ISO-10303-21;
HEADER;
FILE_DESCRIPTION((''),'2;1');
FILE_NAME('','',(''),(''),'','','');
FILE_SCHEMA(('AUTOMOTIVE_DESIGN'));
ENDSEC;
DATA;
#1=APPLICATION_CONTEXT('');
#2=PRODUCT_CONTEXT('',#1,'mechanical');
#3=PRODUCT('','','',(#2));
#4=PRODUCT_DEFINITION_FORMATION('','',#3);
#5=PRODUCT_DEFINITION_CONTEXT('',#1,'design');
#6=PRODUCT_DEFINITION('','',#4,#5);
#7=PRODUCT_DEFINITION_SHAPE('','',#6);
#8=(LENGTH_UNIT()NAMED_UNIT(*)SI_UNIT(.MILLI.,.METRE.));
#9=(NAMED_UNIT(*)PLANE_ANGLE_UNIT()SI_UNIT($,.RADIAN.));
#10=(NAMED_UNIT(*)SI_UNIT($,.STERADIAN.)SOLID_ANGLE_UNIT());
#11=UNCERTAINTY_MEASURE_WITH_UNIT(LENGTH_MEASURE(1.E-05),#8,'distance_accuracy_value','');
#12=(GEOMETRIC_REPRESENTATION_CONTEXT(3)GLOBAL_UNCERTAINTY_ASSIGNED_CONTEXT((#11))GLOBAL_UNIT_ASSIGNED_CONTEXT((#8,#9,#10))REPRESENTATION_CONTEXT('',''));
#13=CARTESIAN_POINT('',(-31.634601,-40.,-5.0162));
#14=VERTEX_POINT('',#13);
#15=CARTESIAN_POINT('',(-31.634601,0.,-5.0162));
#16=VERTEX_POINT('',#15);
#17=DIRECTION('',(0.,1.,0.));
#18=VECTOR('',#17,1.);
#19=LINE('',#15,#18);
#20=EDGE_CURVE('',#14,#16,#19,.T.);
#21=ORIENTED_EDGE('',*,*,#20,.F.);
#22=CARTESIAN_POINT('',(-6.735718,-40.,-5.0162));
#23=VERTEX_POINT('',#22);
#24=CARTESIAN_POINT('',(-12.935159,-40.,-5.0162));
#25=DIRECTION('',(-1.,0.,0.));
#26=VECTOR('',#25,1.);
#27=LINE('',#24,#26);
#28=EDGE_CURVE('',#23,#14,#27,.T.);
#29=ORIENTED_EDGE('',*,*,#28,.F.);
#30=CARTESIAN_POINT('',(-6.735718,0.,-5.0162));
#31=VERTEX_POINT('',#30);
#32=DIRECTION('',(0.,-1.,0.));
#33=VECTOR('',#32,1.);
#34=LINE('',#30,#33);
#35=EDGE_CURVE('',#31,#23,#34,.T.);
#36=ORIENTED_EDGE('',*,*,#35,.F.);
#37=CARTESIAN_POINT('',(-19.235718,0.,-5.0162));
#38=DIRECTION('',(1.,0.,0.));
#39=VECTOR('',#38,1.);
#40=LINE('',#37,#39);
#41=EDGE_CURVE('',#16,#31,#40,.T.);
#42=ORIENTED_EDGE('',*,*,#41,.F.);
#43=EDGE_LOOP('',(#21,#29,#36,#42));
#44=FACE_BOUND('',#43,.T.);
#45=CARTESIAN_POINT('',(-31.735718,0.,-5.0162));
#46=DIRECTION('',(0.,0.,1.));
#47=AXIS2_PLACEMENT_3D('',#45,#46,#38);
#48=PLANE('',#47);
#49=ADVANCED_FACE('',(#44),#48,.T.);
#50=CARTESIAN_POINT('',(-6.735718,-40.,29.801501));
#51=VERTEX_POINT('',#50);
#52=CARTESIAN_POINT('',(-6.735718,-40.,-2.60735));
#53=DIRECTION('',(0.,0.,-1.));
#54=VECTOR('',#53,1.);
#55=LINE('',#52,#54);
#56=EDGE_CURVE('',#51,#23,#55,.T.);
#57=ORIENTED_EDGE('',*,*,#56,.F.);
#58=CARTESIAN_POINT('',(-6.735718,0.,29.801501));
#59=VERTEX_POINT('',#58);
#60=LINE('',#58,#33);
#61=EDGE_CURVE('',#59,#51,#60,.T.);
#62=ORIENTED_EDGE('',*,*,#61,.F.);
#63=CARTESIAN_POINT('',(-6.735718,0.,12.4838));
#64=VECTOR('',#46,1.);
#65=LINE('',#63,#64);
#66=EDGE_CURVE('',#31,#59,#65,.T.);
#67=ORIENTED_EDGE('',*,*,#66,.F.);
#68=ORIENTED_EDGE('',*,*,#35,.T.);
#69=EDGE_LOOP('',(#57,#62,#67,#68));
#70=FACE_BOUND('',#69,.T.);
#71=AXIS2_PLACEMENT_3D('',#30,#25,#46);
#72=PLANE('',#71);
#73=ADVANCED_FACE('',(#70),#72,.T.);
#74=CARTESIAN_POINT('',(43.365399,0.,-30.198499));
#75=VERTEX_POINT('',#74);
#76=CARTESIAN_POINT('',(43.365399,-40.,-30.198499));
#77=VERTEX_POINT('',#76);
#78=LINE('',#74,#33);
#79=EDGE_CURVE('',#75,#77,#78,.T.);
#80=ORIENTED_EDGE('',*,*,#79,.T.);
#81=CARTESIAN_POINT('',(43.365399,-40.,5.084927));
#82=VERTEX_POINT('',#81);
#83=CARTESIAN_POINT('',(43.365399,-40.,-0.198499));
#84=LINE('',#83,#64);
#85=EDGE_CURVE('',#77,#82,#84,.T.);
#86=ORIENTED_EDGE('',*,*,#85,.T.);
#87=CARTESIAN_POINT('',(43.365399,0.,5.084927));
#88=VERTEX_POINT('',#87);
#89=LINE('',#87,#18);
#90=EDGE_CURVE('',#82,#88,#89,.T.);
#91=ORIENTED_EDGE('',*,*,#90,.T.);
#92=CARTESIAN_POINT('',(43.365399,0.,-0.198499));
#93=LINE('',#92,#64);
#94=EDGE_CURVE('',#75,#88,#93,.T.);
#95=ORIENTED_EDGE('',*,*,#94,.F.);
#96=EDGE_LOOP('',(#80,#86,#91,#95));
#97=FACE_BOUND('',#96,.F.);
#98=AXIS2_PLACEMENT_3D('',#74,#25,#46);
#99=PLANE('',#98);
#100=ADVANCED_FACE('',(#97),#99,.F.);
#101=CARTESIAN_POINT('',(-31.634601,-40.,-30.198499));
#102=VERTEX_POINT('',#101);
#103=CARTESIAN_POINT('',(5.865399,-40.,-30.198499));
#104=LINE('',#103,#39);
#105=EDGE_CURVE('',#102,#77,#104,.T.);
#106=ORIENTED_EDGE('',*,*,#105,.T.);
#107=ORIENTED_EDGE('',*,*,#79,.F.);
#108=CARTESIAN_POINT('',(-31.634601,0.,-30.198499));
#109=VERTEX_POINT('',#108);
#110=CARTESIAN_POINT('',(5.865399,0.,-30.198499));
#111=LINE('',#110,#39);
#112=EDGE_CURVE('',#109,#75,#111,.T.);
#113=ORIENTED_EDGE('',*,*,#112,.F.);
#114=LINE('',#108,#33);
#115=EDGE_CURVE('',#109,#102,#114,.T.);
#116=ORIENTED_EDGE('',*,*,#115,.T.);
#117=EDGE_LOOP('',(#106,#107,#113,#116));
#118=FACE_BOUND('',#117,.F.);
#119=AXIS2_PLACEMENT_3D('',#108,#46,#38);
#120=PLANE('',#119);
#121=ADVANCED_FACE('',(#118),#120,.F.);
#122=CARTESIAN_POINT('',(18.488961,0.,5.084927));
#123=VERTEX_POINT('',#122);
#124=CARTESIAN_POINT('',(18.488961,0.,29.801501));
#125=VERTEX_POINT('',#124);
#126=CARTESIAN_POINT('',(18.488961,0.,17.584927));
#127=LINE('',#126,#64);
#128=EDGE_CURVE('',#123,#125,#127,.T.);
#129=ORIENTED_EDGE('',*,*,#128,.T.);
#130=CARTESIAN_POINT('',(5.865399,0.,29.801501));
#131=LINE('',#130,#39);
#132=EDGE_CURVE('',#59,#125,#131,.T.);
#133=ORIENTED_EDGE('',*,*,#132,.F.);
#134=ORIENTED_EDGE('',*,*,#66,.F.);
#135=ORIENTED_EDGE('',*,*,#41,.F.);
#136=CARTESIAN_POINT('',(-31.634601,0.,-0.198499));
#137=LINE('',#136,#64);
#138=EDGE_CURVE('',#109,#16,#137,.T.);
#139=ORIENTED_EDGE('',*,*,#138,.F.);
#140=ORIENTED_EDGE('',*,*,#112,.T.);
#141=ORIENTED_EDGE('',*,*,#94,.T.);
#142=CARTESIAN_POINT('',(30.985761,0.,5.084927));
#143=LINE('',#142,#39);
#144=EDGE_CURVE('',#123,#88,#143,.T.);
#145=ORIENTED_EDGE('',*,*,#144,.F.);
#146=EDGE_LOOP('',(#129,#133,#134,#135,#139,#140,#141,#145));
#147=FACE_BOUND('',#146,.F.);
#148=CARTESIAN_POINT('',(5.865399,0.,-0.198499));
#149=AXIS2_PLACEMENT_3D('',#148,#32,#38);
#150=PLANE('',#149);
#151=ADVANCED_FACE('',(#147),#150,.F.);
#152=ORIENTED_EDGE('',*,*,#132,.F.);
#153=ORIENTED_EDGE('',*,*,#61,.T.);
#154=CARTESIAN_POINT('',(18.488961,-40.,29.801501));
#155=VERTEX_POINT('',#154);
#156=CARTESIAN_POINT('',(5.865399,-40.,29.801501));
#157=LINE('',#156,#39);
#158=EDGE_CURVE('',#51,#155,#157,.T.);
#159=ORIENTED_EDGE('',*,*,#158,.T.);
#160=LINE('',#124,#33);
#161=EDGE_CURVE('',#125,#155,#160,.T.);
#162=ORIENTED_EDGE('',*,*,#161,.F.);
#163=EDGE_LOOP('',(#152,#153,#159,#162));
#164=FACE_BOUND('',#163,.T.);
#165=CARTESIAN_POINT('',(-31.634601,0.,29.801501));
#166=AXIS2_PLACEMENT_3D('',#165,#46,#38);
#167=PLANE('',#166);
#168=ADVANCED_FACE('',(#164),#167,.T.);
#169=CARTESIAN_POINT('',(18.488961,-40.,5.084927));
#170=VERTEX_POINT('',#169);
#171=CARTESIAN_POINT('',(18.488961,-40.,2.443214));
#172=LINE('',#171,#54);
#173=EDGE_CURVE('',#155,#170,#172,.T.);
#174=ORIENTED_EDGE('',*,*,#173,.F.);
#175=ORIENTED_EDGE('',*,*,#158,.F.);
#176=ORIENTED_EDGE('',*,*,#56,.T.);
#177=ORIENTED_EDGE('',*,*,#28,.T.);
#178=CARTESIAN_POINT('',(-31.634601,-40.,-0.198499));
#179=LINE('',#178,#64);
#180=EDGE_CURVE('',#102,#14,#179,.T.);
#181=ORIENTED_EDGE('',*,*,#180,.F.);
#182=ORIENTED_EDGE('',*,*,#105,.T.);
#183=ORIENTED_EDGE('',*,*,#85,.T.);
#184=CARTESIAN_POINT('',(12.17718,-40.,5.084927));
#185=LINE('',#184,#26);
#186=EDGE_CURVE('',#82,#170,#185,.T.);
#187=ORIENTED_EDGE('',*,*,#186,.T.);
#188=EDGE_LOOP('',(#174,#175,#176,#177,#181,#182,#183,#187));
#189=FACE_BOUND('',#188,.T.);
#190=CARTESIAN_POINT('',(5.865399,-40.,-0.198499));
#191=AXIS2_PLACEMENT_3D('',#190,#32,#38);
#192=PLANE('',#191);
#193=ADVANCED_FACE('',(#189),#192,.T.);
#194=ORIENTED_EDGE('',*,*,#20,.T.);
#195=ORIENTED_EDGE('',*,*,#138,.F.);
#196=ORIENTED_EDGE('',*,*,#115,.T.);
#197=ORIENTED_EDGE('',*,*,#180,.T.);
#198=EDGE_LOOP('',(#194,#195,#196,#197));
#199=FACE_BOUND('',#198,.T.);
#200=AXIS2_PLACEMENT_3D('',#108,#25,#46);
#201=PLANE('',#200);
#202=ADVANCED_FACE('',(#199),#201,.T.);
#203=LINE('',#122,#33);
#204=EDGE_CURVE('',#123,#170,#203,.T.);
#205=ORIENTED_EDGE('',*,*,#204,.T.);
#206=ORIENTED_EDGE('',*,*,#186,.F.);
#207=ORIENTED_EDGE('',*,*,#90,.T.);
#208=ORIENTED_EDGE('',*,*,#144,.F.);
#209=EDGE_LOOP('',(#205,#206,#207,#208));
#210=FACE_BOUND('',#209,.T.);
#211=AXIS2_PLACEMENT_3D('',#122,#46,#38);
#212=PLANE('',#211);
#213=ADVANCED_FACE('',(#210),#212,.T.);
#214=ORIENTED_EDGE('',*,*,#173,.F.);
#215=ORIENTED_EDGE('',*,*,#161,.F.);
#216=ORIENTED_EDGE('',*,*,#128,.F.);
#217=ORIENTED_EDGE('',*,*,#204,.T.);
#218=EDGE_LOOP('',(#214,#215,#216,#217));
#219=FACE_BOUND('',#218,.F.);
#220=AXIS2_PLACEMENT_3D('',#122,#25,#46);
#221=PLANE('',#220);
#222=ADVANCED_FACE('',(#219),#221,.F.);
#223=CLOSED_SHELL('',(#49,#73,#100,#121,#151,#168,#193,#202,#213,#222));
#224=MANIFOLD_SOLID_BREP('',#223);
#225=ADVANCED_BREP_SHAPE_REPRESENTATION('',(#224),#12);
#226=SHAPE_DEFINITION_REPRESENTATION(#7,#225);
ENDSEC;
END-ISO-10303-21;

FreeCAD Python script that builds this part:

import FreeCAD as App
import Part
import Sketcher


def add_polygon(sketch, points):
    """Adds a closed chain of lines whose ends are joined by coincident constraints."""
    first, n = sketch.GeometryCount, len(points)
    for a, b in zip(points, points[1:] + points[:1]):
        sketch.addGeometry(Part.LineSegment(App.Vector(*a, 0), App.Vector(*b, 0)), False)
    for i in range(n):
        sketch.addConstraint(Sketcher.Constraint("Coincident", first + i, 2, first + (i + 1) % n, 1))

doc = App.newDocument("Part")
body = doc.addObject("PartDesign::Body", "Body")

sketch1 = body.newObject("Sketcher::SketchObject", "Sketch")
sketch1.AttachmentSupport = (doc.getObject("XZ_Plane"), [""])
sketch1.MapMode = "FlatFace"
add_polygon(sketch1, [(-32, 30), (-32, -30), (43, -30), (43, 30)])
sketch1.addConstraint([
    Sketcher.Constraint("Vertical", 0),
    Sketcher.Constraint("Horizontal", 1),
    Sketcher.Constraint("Vertical", 2),
    Sketcher.Constraint("Horizontal", 3),
    Sketcher.Constraint("DistanceX", 1, 1, 1, 2, 75.0),
    Sketcher.Constraint("DistanceY", 0, 2, 0, 1, 60.0),
    Sketcher.Constraint("DistanceX", 0, 2, -1, 1, 31.634601),
    Sketcher.Constraint("DistanceY", 0, 2, -1, 1, 30.198499),
])
pad1 = body.newObject("PartDesign::Pad", "Pad")
pad1.Profile = sketch1
pad1.Length = 40

sketch2 = body.newObject("Sketcher::SketchObject", "Sketch001")
sketch2.AttachmentSupport = (doc.getObject("XZ_Plane"), [""])
sketch2.MapMode = "FlatFace"
add_polygon(sketch2, [(-32, 30), (-32, -5), (-7, -5), (-7, 30)])
add_polygon(sketch2, [(18, 30), (18, 5), (43, 5), (43, 30)])
sketch2.addConstraint([
    Sketcher.Constraint("Vertical", 0),
    Sketcher.Constraint("Horizontal", 1),
    Sketcher.Constraint("Vertical", 2),
    Sketcher.Constraint("Horizontal", 3),
    Sketcher.Constraint("Vertical", 4),
    Sketcher.Constraint("Horizontal", 5),
    Sketcher.Constraint("Vertical", 6),
    Sketcher.Constraint("Horizontal", 7),
    Sketcher.Constraint("Equal", 3, 4),
    Sketcher.Constraint("DistanceX", 1, 1, 1, 2, 25.0),
    Sketcher.Constraint("DistanceY", 0, 2, 0, 1, 35.0),
    Sketcher.Constraint("DistanceX", 5, 1, 5, 2, 24.9936),
    Sketcher.Constraint("DistanceY", 0, 2, -1, 1, 5.0162),
    Sketcher.Constraint("DistanceX", 1, 2, -1, 1, 6.735718),
    Sketcher.Constraint("DistanceX", -1, 1, 4, 2, 18.488961),
    Sketcher.Constraint("DistanceY", -1, 1, 4, 2, 5.084927),
])
pocket1 = body.newObject("PartDesign::Pocket", "Pocket")
pocket1.Profile = sketch2
pocket1.Type = "ThroughAll"
pocket1.Reversed = True

doc.recompute()
